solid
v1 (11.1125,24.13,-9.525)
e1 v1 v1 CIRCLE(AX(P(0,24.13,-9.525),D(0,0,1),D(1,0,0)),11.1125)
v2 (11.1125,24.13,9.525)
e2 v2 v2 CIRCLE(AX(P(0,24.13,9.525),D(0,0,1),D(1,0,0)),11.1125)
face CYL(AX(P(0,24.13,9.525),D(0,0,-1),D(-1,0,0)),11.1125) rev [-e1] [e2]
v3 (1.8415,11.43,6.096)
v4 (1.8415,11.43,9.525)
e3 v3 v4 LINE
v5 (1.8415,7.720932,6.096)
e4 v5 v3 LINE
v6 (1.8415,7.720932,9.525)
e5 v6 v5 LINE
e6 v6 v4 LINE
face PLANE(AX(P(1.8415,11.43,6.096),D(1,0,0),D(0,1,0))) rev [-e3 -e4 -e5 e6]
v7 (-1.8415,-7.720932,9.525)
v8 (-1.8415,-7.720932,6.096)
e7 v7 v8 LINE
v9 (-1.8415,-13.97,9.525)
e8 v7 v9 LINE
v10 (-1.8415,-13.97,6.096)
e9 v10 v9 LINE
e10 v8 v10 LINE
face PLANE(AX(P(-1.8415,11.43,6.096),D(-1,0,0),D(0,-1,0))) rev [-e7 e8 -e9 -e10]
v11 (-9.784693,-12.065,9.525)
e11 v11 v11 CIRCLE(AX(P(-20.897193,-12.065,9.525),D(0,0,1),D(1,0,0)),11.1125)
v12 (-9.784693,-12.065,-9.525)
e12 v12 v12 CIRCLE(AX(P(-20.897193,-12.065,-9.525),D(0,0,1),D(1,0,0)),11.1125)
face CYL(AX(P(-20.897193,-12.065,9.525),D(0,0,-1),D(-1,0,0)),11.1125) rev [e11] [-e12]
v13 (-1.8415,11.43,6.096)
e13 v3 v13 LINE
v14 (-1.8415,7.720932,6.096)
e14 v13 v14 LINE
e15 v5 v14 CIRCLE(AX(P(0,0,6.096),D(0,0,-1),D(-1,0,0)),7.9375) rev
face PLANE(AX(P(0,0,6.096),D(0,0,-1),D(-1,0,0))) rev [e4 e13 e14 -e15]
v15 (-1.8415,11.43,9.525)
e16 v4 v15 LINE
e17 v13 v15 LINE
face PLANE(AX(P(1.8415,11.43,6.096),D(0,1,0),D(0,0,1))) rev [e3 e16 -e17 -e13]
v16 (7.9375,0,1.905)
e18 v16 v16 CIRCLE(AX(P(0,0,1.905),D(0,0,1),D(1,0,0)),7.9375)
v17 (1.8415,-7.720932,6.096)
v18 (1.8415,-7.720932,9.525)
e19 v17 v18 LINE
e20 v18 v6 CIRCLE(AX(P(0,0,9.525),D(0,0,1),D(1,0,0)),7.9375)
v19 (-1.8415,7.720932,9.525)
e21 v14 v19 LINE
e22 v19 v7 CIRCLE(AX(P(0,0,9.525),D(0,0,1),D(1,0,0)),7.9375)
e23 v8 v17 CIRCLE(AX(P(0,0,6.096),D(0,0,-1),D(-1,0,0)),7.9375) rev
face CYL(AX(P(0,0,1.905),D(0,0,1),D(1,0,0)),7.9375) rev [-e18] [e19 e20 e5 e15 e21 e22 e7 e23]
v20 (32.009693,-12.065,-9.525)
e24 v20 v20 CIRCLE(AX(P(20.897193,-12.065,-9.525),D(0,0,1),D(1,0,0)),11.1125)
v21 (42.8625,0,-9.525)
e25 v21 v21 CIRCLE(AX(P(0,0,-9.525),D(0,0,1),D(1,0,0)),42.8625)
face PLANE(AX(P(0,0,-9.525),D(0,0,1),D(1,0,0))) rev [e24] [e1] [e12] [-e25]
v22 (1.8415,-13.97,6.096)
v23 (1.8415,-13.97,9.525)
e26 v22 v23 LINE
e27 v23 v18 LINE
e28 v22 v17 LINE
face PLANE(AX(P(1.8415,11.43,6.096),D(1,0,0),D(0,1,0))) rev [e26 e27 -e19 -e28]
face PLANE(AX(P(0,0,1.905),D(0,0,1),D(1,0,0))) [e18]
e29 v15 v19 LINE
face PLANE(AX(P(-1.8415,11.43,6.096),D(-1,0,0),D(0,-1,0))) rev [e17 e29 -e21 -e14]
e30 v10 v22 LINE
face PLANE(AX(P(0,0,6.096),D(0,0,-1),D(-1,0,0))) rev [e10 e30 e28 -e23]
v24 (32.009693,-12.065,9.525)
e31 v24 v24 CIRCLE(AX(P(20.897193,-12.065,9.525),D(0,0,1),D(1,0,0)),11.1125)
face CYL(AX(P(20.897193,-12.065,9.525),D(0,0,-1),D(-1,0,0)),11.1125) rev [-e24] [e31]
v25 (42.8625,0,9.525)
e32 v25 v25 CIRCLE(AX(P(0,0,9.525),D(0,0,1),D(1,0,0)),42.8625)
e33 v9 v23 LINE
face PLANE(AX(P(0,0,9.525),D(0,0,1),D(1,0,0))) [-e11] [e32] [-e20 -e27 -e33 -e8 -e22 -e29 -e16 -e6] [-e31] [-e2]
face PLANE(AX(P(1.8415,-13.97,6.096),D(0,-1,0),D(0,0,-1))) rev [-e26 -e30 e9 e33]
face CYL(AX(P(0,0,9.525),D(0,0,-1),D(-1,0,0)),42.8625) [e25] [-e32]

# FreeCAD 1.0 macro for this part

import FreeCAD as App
import Part
import Sketcher
from FreeCAD import Vector
Q = App.Units.Quantity

doc = App.newDocument("Part")
params = doc.addObject("Spreadsheet::Sheet", "Params")
for row, (alias, value) in enumerate([
    ("sketch1_diameter", "3.375 in"),
    ("sketch1_diameter2", "0.875 in"),
    ("pad1_length", "0.75 in"),
    ("sketch2_diameter", "0.625 in"),
    ("pocket1_length", "0.3 in"),
    ("sketch3_height", "1 in"),
    ("sketch3_width", "0.145 in"),
    ("pocket2_length", "0.135 in"),
], start=1):
    params.set(f"A{row}", alias)
    params.set(f"B{row}", "=" + value)
    params.setAlias(f"B{row}", alias)

body = doc.addObject("PartDesign::Body", "Body")

sketch1 = body.newObject("Sketcher::SketchObject", "Sketch")
sketch1.AttachmentSupport = (doc.getObject("XY_Plane"), [""])
sketch1.MapMode = "FlatFace"
sketch1.addGeometry([
    Part.Circle(Vector(0, 0, 0), Vector(0, 0, 1), 43),
    Part.Circle(Vector(-21, -12, 0), Vector(0, 0, 1), 11),
    Part.Circle(Vector(21, -12, 0), Vector(0, 0, 1), 11),
    Part.Circle(Vector(0, 24, 0), Vector(0, 0, 1), 11),
], False)
sketch1.addConstraint([
    Sketcher.Constraint("Coincident", 0, 3, -1, 1),
    Sketcher.Constraint("Equal", 1, 2),
    Sketcher.Constraint("Equal", 2, 3),
    Sketcher.Constraint("Symmetric", 1, 3, 2, 3, -2),
    Sketcher.Constraint("PointOnObject", 3, 3, -2),
    Sketcher.Constraint("Diameter", 0, Q("3.375 in")),
    Sketcher.Constraint("Diameter", 1, Q("0.875 in")),
    Sketcher.Constraint("DistanceY", -1, 1, 3, 3, Q("0.95 in")),
    Sketcher.Constraint("DistanceY", 1, 3, -1, 1, Q("0.475 in")),
    Sketcher.Constraint("DistanceX", 1, 3, -1, 1, 20.897193),
])
sketch1.setExpression("Constraints[5]", "Params.sketch1_diameter")
sketch1.setExpression("Constraints[6]", "Params.sketch1_diameter2")
pad1 = body.newObject("PartDesign::Pad", "Pad")
pad1.Profile = sketch1
pad1.setExpression("Length", "Params.pad1_length")
pad1.Midplane = True

sketch2 = body.newObject("Sketcher::SketchObject", "Sketch001")
sketch2.AttachmentSupport = (doc.getObject("XY_Plane"), [""])
sketch2.MapMode = "FlatFace"
sketch2.AttachmentOffset = App.Placement(Vector(0, 0, 0.375 * 25.4), App.Rotation())
sketch2.addGeometry(Part.Circle(Vector(0, 0, 0), Vector(0, 0, 1), 8), False)
sketch2.addConstraint([
    Sketcher.Constraint("Coincident", 0, 3, -1, 1),
    Sketcher.Constraint("Diameter", 0, Q("0.625 in")),
])
sketch2.setExpression("Constraints[1]", "Params.sketch2_diameter")
pocket1 = body.newObject("PartDesign::Pocket", "Pocket")
pocket1.Profile = sketch2
pocket1.setExpression("Length", "Params.pocket1_length")

sketch3 = body.newObject("Sketcher::SketchObject", "Sketch002")
sketch3.AttachmentSupport = (doc.getObject("XY_Plane"), [""])
sketch3.MapMode = "FlatFace"
sketch3.AttachmentOffset = App.Placement(Vector(0, 0, 0.375 * 25.4), App.Rotation())
sketch3.addGeometry([
    Part.LineSegment(Vector(-1.8, 11.4, 0), Vector(-1.8, -14, 0)),
    Part.LineSegment(Vector(-1.8, -14, 0), Vector(1.8, -14, 0)),
    Part.LineSegment(Vector(1.8, -14, 0), Vector(1.8, 11.4, 0)),
    Part.LineSegment(Vector(1.8, 11.4, 0), Vector(-1.8, 11.4, 0)),
], False)
sketch3.addConstraint([
    Sketcher.Constraint("Coincident", 0, 2, 1, 1),
    Sketcher.Constraint("Coincident", 1, 2, 2, 1),
    Sketcher.Constraint("Coincident", 2, 2, 3, 1),
    Sketcher.Constraint("Coincident", 3, 2, 0, 1),
    Sketcher.Constraint("Vertical", 0),
    Sketcher.Constraint("Horizontal", 1),
    Sketcher.Constraint("Vertical", 2),
    Sketcher.Constraint("Horizontal", 3),
    Sketcher.Constraint("DistanceY", 0, 2, 0, 1, Q("1 in")),
    Sketcher.Constraint("DistanceX", 1, 1, 1, 2, Q("0.145 in")),
    Sketcher.Constraint("DistanceY", 0, 2, -1, 1, Q("0.55 in")),
    Sketcher.Constraint("DistanceX", 0, 2, -1, 1, Q("0.0725 in")),
])
sketch3.setExpression("Constraints[8]", "Params.sketch3_height")
sketch3.setExpression("Constraints[9]", "Params.sketch3_width")
pocket2 = body.newObject("PartDesign::Pocket", "Pocket001")
pocket2.Profile = sketch3
pocket2.setExpression("Length", "Params.pocket2_length")

doc.recompute()
